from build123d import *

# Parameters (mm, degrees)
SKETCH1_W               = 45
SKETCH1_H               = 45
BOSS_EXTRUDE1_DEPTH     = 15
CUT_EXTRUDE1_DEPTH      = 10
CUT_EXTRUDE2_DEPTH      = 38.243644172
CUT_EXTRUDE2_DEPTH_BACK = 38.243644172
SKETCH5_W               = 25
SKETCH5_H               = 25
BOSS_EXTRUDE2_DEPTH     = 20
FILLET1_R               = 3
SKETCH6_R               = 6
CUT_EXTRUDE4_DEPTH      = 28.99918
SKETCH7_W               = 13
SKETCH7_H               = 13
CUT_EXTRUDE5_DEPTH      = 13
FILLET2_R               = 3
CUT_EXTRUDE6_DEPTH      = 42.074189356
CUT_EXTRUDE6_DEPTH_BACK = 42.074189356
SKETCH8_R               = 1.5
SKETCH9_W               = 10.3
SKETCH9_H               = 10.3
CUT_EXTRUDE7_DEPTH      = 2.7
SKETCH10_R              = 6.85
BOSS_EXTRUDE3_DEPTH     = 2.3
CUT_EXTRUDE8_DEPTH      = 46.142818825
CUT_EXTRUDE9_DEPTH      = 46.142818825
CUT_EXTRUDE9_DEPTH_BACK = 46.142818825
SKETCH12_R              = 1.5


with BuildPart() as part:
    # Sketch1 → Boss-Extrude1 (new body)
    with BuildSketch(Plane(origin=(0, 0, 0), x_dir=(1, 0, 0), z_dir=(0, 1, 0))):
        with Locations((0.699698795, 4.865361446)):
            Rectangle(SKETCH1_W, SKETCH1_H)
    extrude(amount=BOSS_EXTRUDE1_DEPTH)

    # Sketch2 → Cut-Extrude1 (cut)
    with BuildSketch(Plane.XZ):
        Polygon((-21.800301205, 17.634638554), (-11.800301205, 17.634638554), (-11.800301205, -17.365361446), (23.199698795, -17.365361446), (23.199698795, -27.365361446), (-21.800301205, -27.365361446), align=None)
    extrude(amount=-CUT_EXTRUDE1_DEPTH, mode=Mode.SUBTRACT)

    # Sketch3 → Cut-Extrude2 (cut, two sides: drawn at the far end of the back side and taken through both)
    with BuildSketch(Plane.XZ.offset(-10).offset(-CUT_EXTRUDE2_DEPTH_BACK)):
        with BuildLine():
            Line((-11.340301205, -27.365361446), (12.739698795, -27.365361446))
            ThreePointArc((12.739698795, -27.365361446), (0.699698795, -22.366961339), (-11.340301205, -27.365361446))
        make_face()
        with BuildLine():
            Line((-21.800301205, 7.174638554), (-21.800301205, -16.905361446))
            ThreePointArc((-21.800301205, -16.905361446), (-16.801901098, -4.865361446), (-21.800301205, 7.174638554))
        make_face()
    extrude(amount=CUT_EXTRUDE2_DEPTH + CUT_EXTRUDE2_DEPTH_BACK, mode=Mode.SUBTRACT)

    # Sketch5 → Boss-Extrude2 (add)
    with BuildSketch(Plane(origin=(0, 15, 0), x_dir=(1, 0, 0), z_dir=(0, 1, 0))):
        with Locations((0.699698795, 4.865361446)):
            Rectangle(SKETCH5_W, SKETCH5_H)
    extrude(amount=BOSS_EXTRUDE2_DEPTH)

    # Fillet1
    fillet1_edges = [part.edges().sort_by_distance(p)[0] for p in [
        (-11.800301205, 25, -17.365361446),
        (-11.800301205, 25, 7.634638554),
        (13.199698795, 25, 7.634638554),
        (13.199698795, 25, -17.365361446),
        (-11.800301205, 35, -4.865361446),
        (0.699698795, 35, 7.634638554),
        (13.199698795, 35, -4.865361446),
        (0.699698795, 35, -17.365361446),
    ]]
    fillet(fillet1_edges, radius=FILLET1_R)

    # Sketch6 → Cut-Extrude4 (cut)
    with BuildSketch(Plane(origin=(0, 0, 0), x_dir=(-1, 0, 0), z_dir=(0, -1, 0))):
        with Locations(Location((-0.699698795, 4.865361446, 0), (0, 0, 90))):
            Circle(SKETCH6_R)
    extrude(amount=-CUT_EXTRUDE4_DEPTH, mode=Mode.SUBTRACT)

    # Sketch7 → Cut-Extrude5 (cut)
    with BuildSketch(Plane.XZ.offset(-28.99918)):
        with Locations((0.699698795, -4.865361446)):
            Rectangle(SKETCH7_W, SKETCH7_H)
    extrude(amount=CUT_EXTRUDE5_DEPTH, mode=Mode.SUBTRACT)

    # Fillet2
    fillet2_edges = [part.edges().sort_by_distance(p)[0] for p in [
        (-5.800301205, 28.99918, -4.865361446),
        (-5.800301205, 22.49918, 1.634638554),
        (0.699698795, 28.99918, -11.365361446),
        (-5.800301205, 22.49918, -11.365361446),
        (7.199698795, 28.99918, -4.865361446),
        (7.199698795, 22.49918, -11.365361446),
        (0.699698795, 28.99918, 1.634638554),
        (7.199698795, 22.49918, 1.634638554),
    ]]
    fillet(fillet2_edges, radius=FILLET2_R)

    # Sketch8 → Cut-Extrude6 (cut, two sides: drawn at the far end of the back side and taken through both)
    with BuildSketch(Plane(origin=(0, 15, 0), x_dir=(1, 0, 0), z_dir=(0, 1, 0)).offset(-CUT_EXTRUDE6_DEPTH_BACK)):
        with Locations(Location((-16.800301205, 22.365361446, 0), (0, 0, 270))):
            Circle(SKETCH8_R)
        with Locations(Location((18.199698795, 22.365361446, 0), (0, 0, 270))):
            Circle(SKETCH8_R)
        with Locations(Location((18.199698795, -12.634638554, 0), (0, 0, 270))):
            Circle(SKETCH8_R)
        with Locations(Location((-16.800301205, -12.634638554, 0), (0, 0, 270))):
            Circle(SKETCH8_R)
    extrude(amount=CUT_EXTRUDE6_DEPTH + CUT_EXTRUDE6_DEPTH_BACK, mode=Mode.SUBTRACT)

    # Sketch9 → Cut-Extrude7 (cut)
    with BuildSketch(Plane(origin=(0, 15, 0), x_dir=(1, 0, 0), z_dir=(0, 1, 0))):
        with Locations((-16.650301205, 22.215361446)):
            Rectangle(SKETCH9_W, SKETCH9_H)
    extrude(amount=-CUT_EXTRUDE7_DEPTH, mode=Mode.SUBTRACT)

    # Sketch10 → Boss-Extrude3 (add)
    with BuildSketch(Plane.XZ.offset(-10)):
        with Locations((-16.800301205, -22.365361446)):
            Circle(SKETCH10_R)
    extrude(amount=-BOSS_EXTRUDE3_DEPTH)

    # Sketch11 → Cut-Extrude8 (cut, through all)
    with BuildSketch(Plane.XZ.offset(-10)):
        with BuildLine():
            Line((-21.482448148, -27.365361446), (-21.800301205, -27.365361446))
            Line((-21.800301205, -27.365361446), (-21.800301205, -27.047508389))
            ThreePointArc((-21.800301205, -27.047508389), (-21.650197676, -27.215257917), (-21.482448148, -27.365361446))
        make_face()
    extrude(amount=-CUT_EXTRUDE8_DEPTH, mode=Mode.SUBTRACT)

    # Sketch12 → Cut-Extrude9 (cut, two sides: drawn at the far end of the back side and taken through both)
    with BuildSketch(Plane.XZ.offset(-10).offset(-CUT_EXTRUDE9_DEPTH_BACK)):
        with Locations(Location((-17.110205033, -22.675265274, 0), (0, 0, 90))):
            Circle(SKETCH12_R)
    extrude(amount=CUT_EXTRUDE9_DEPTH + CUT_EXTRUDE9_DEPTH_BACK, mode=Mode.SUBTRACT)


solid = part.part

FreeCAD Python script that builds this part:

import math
import FreeCAD as App
import Part
import Sketcher
Q = App.Units.Quantity


def edges_at(feature, points):
    """Names of the edges that pass closest to the given points."""
    edges = feature.Shape.Edges
    near = lambda p: min(range(len(edges)), key=lambda i: edges[i].distToShape(Part.Vertex(*p))[0])
    return sorted({f"Edge{near(p) + 1}" for p in points})


def add_polygon(sketch, points):
    """Adds a closed chain of lines whose ends are joined by coincident constraints."""
    first, n = sketch.GeometryCount, len(points)
    for a, b in zip(points, points[1:] + points[:1]):
        sketch.addGeometry(Part.LineSegment(App.Vector(*a, 0), App.Vector(*b, 0)), False)
    for i in range(n):
        sketch.addConstraint(Sketcher.Constraint("Coincident", first + i, 2, first + (i + 1) % n, 1))

doc = App.newDocument("Part")
body = doc.addObject("PartDesign::Body", "Body")

# Sketch on XZ plane
sketch1 = body.newObject("Sketcher::SketchObject", "Sketch")
sketch1.AttachmentSupport = (doc.getObject("XZ_Plane"), [""])
sketch1.MapMode = "FlatFace"
add_polygon(sketch1, [(-22, -27), (-22, 18), (23, 18), (23, -27)])  # lines 0-3
sketch1.addConstraint([
    Sketcher.Constraint("Vertical", 0),
    Sketcher.Constraint("Horizontal", 1),
    Sketcher.Constraint("Vertical", 2),
    Sketcher.Constraint("Horizontal", 3),
    Sketcher.Constraint("Equal", 3, 0),
    Sketcher.Constraint("DistanceX", 1, 1, 1, 2, Q("45 mm")),
    Sketcher.Constraint("DistanceX", 0, 2, -1, 1, Q("21.800301 mm")),
    Sketcher.Constraint("DistanceY", -1, 1, 0, 2, Q("17.634639 mm")),
])
pad1 = body.newObject("PartDesign::Pad", "Pad")
pad1.Profile = sketch1
pad1.Length = 15
pad1.Reversed = True

# Sketch on XZ plane
sketch2 = body.newObject("Sketcher::SketchObject", "Sketch001")
sketch2.AttachmentSupport = (doc.getObject("XZ_Plane"), [""])
sketch2.MapMode = "FlatFace"
add_polygon(sketch2, [(-12, 18), (-22, 18), (-22, -27), (23, -27), (23, -17), (-12, -17)])  # lines 0-5
sketch2.addConstraint([
    Sketcher.Constraint("Horizontal", 0),
    Sketcher.Constraint("Vertical", 1),
    Sketcher.Constraint("Horizontal", 2),
    Sketcher.Constraint("Vertical", 3),
    Sketcher.Constraint("Horizontal", 4),
    Sketcher.Constraint("Vertical", 5),
    Sketcher.Constraint("Equal", 2, 1),
    Sketcher.Constraint("Equal", 0, 3),
    Sketcher.Constraint("DistanceX", 0, 2, 0, 1, Q("10 mm")),
    Sketcher.Constraint("DistanceX", 2, 1, 2, 2, Q("45 mm")),
    Sketcher.Constraint("DistanceX", 0, 2, -1, 1, Q("21.800301 mm")),
    Sketcher.Constraint("DistanceY", -1, 1, 0, 2, Q("17.634639 mm")),
])
pocket1 = body.newObject("PartDesign::Pocket", "Pocket")
pocket1.Profile = sketch2
pocket1.Length = 10

# Sketch on XZ plane
sketch3 = body.newObject("Sketcher::SketchObject", "Sketch002")
sketch3.AttachmentSupport = (doc.getObject("XZ_Plane"), [""])
sketch3.MapMode = "FlatFace"
sketch3.AttachmentOffset = App.Placement(App.Vector(0, 0, -10), App.Rotation())
sketch3.addGeometry([
    Part.LineSegment(App.Vector(-11, -27, 0), App.Vector(13, -27, 0)),
    Part.ArcOfCircle(Part.Circle(App.Vector(1, -39, 0), App.Vector(0, 0, 1), 17), math.radians(45), math.radians(135)),
    Part.LineSegment(App.Vector(-22, 7, 0), App.Vector(-22, -17, 0)),
    Part.ArcOfCircle(Part.Circle(App.Vector(-34, -5, 0), App.Vector(0, 0, 1), 17), math.radians(-45), math.radians(45)),
], False)
sketch3.addConstraint([
    Sketcher.Constraint("Coincident", 0, 1, 1, 2),
    Sketcher.Constraint("Coincident", 1, 1, 0, 2),
    Sketcher.Constraint("Coincident", 2, 1, 3, 2),
    Sketcher.Constraint("Coincident", 3, 1, 2, 2),
    Sketcher.Constraint("Horizontal", 0),
    Sketcher.Constraint("Vertical", 2),
    Sketcher.Constraint("Equal", 1, 3),
    Sketcher.Constraint("Equal", 0, 2),
    Sketcher.Constraint("Radius", 1, Q("17 mm")),
    Sketcher.Constraint("DistanceX", 0, 1, 0, 2, Q("24.08 mm")),
    Sketcher.Constraint("DistanceY", 0, 1, 3, 3, Q("22.5 mm")),
    Sketcher.Constraint("DistanceX", 2, 1, 1, 3, Q("22.5 mm")),
    Sketcher.Constraint("DistanceX", -1, 1, 1, 3, Q("0.699699 mm")),
    Sketcher.Constraint("DistanceY", 1, 3, -1, 1, Q("39.366961 mm")),
])
pocket2 = body.newObject("PartDesign::Pocket", "Pocket001")
pocket2.Profile = sketch3
pocket2.Type = "ThroughAll"
pocket2.Midplane = True

# Sketch on XZ plane
sketch4 = body.newObject("Sketcher::SketchObject", "Sketch003")
sketch4.AttachmentSupport = (doc.getObject("XZ_Plane"), [""])
sketch4.MapMode = "FlatFace"
sketch4.AttachmentOffset = App.Placement(App.Vector(0, 0, -15), App.Rotation())
add_polygon(sketch4, [(-12, -17), (-12, 8), (13, 8), (13, -17)])  # lines 0-3
sketch4.addConstraint([
    Sketcher.Constraint("Vertical", 0),
    Sketcher.Constraint("Horizontal", 1),
    Sketcher.Constraint("Vertical", 2),
    Sketcher.Constraint("Horizontal", 3),
    Sketcher.Constraint("Equal", 3, 0),
    Sketcher.Constraint("DistanceX", 1, 1, 1, 2, Q("25 mm")),
    Sketcher.Constraint("DistanceX", 0, 2, -1, 1, Q("11.800301 mm")),
    Sketcher.Constraint("DistanceY", -1, 1, 0, 2, Q("7.634639 mm")),
])
pad2 = body.newObject("PartDesign::Pad", "Pad001")
pad2.Profile = sketch4
pad2.Length = 20
pad2.Reversed = True
doc.recompute()

fillet = body.newObject("PartDesign::Fillet", "Fillet")
fillet.Base = (pad2, edges_at(pad2, [
    (-11.8, 25, -17.365),
    (-11.8, 25, 7.635),
    (13.2, 25, 7.635),
    (13.2, 25, -17.365),
    (-11.8, 35, -4.865),
    (0.7, 35, 7.635),
    (13.2, 35, -4.865),
    (0.7, 35, -17.365),
]))
fillet.Radius = 3

# Sketch on XZ plane
sketch5 = body.newObject("Sketcher::SketchObject", "Sketch004")
sketch5.AttachmentSupport = (doc.getObject("XZ_Plane"), [""])
sketch5.MapMode = "FlatFace"
sketch5.addGeometry(Part.Circle(App.Vector(1, -5, 0), App.Vector(0, 0, 1), 6), False)
sketch5.addConstraint([
    Sketcher.Constraint("Diameter", 0, Q("12 mm")),
    Sketcher.Constraint("DistanceX", -1, 1, 0, 3, Q("0.699699 mm")),
    Sketcher.Constraint("DistanceY", 0, 3, -1, 1, Q("4.865361 mm")),
])
pocket3 = body.newObject("PartDesign::Pocket", "Pocket002")
pocket3.Profile = sketch5
pocket3.Length = 28.99918

# Sketch on XZ plane
sketch6 = body.newObject("Sketcher::SketchObject", "Sketch005")
sketch6.AttachmentSupport = (doc.getObject("XZ_Plane"), [""])
sketch6.MapMode = "FlatFace"
sketch6.AttachmentOffset = App.Placement(App.Vector(0, 0, -28.99918), App.Rotation())
add_polygon(sketch6, [(-6, 2), (-6, -11), (7, -11), (7, 2)])  # lines 0-3
sketch6.addConstraint([
    Sketcher.Constraint("Vertical", 0),
    Sketcher.Constraint("Horizontal", 1),
    Sketcher.Constraint("Vertical", 2),
    Sketcher.Constraint("Horizontal", 3),
    Sketcher.Constraint("Equal", 3, 0),
    Sketcher.Constraint("DistanceX", 1, 1, 1, 2, Q("13 mm")),
    Sketcher.Constraint("DistanceX", 0, 2, -1, 1, Q("5.800301 mm")),
    Sketcher.Constraint("DistanceY", 0, 2, -1, 1, Q("11.365361 mm")),
])
pocket4 = body.newObject("PartDesign::Pocket", "Pocket003")
pocket4.Profile = sketch6
pocket4.Length = 13
pocket4.Reversed = True
doc.recompute()

fillet2 = body.newObject("PartDesign::Fillet", "Fillet001")
fillet2.Base = (pocket4, edges_at(pocket4, [
    (-5.8, 28.999, -4.865),
    (-5.8, 22.499, 1.635),
    (0.7, 28.999, -11.365),
    (-5.8, 22.499, -11.365),
    (7.2, 28.999, -4.865),
    (7.2, 22.499, -11.365),
    (0.7, 28.999, 1.635),
    (7.2, 22.499, 1.635),
]))
fillet2.Radius = 3

# Sketch on XZ plane
sketch7 = body.newObject("Sketcher::SketchObject", "Sketch006")
sketch7.AttachmentSupport = (doc.getObject("XZ_Plane"), [""])
sketch7.MapMode = "FlatFace"
sketch7.AttachmentOffset = App.Placement(App.Vector(0, 0, -15), App.Rotation())
sketch7.addGeometry([
    Part.Circle(App.Vector(-16.8, -22.4, 0), App.Vector(0, 0, 1), 1.5),
    Part.Circle(App.Vector(18.2, -22.4, 0), App.Vector(0, 0, 1), 1.5),
    Part.Circle(App.Vector(18.2, 12.6, 0), App.Vector(0, 0, 1), 1.5),
    Part.Circle(App.Vector(-16.8, 12.6, 0), App.Vector(0, 0, 1), 1.5),
], False)
sketch7.addConstraint([
    Sketcher.Constraint("Equal", 0, 1),
    Sketcher.Constraint("Equal", 1, 2),
    Sketcher.Constraint("Equal", 2, 3),
    Sketcher.Constraint("Horizontal", 0, 3, 1, 3),
    Sketcher.Constraint("Horizontal", 2, 3, 3, 3),
    Sketcher.Constraint("Vertical", 1, 3, 2, 3),
    Sketcher.Constraint("Vertical", 0, 3, 3, 3),
    Sketcher.Constraint("Diameter", 0, Q("3 mm")),
    Sketcher.Constraint("DistanceX", 0, 3, 1, 3, Q("35 mm")),
    Sketcher.Constraint("DistanceY", 1, 3, 2, 3, Q("35 mm")),
    Sketcher.Constraint("DistanceX", 0, 3, -1, 1, Q("16.800301 mm")),
    Sketcher.Constraint("DistanceY", 0, 3, -1, 1, Q("22.365361 mm")),
])
pocket5 = body.newObject("PartDesign::Pocket", "Pocket004")
pocket5.Profile = sketch7
pocket5.Type = "ThroughAll"
pocket5.Midplane = True

# Sketch on XZ plane
sketch8 = body.newObject("Sketcher::SketchObject", "Sketch007")
sketch8.AttachmentSupport = (doc.getObject("XZ_Plane"), [""])
sketch8.MapMode = "FlatFace"
sketch8.AttachmentOffset = App.Placement(App.Vector(0, 0, -15), App.Rotation())
add_polygon(sketch8, [(-22, -27), (-22, -17), (-12, -17), (-12, -27)])  # lines 0-3
sketch8.addConstraint([
    Sketcher.Constraint("Vertical", 0),
    Sketcher.Constraint("Horizontal", 1),
    Sketcher.Constraint("Vertical", 2),
    Sketcher.Constraint("Horizontal", 3),
    Sketcher.Constraint("Equal", 3, 0),
    Sketcher.Constraint("DistanceX", 1, 1, 1, 2, Q("10.3 mm")),
    Sketcher.Constraint("DistanceX", 0, 2, -1, 1, Q("21.800301 mm")),
    Sketcher.Constraint("DistanceY", 0, 2, -1, 1, Q("17.065361 mm")),
])
pocket6 = body.newObject("PartDesign::Pocket", "Pocket005")
pocket6.Profile = sketch8
pocket6.Length = 2.7
pocket6.Reversed = True

# Sketch on XZ plane
sketch9 = body.newObject("Sketcher::SketchObject", "Sketch008")
sketch9.AttachmentSupport = (doc.getObject("XZ_Plane"), [""])
sketch9.MapMode = "FlatFace"
sketch9.AttachmentOffset = App.Placement(App.Vector(0, 0, -10), App.Rotation())
sketch9.addGeometry(Part.Circle(App.Vector(-17, -22, 0), App.Vector(0, 0, 1), 7), False)
sketch9.addConstraint([
    Sketcher.Constraint("Diameter", 0, Q("13.7 mm")),
    Sketcher.Constraint("DistanceX", 0, 3, -1, 1, Q("16.800301 mm")),
    Sketcher.Constraint("DistanceY", 0, 3, -1, 1, Q("22.365361 mm")),
])
pad3 = body.newObject("PartDesign::Pad", "Pad002")
pad3.Profile = sketch9
pad3.Length = 2.3
pad3.Reversed = True

# Sketch on XZ plane
sketch10 = body.newObject("Sketcher::SketchObject", "Sketch009")
sketch10.AttachmentSupport = (doc.getObject("XZ_Plane"), [""])
sketch10.MapMode = "FlatFace"
sketch10.AttachmentOffset = App.Placement(App.Vector(0, 0, -10), App.Rotation())
sketch10.addGeometry([
    Part.LineSegment(App.Vector(-21.8, -27.37, 0), App.Vector(-21.48, -27.37, 0)),
    Part.ArcOfCircle(Part.Circle(App.Vector(-20.21, -25.78, 0), App.Vector(0, 0, 1), 2.03), math.radians(-141.36), math.radians(-128.64)),
    Part.LineSegment(App.Vector(-21.8, -27.05, 0), App.Vector(-21.8, -27.37, 0)),
], False)
sketch10.addConstraint([
    Sketcher.Constraint("Coincident", 0, 2, 1, 2),
    Sketcher.Constraint("Coincident", 1, 1, 2, 1),
    Sketcher.Constraint("Coincident", 2, 2, 0, 1),
    Sketcher.Constraint("Horizontal", 0),
    Sketcher.Constraint("Vertical", 2),
    Sketcher.Constraint("Equal", 0, 2),
    Sketcher.Constraint("Radius", 1, Q("2.030477 mm")),
    Sketcher.Constraint("DistanceX", 1, 1, -1, 1, Q("21.800301 mm")),
    Sketcher.Constraint("DistanceX", 0, 1, 0, 2, Q("0.317853 mm")),
    Sketcher.Constraint("DistanceY", 0, 2, -1, 1, Q("27.365361 mm")),
])
pocket7 = body.newObject("PartDesign::Pocket", "Pocket006")
pocket7.Profile = sketch10
pocket7.Type = "ThroughAll"

# Sketch on XZ plane
sketch11 = body.newObject("Sketcher::SketchObject", "Sketch010")
sketch11.AttachmentSupport = (doc.getObject("XZ_Plane"), [""])
sketch11.MapMode = "FlatFace"
sketch11.AttachmentOffset = App.Placement(App.Vector(0, 0, -10), App.Rotation())
sketch11.addGeometry(Part.Circle(App.Vector(-17.1, -22.7, 0), App.Vector(0, 0, 1), 1.5), False)
sketch11.addConstraint([
    Sketcher.Constraint("Diameter", 0, Q("3 mm")),
    Sketcher.Constraint("DistanceX", 0, 3, -1, 1, Q("17.110205 mm")),
    Sketcher.Constraint("DistanceY", 0, 3, -1, 1, Q("22.675265 mm")),
])
pocket8 = body.newObject("PartDesign::Pocket", "Pocket007")
pocket8.Profile = sketch11
pocket8.Type = "ThroughAll"
pocket8.Midplane = True

doc.recompute()
